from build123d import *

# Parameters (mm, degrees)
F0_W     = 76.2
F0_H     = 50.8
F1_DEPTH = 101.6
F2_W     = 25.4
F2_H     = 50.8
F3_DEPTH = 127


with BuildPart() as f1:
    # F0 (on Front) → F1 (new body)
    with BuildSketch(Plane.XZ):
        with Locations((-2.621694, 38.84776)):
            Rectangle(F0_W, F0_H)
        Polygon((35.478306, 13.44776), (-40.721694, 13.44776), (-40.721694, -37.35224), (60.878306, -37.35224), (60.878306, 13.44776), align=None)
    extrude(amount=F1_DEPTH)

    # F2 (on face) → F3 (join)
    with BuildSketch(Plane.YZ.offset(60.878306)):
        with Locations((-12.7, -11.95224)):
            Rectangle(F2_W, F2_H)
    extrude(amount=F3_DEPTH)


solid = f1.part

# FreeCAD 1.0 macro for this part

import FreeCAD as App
import Part
import Sketcher
Q = App.Units.Quantity

doc = App.newDocument("Part")
body = doc.addObject("PartDesign::Body", "Body")

# Sketch on XZ plane
sketch1 = body.newObject("Sketcher::SketchObject", "Sketch")
sketch1.AttachmentSupport = (doc.getObject("XZ_Plane"), [""])
sketch1.MapMode = "FlatFace"
sketch1.addGeometry([
    Part.LineSegment(App.Vector(-41, 64, 0), App.Vector(-41, -37, 0)),  # 0
    Part.LineSegment(App.Vector(-41, -37, 0), App.Vector(61, -37, 0)),  # 1
    Part.LineSegment(App.Vector(61, -37, 0), App.Vector(61, 13, 0)),  # 2
    Part.LineSegment(App.Vector(61, 13, 0), App.Vector(35, 13, 0)),  # 3
    Part.LineSegment(App.Vector(35, 13, 0), App.Vector(35, 64, 0)),  # 4
    Part.LineSegment(App.Vector(35, 64, 0), App.Vector(-41, 64, 0)),  # 5
], False)
sketch1.addConstraint([
    Sketcher.Constraint("Coincident", 0, 2, 1, 1),
    Sketcher.Constraint("Coincident", 1, 2, 2, 1),
    Sketcher.Constraint("Coincident", 2, 2, 3, 1),
    Sketcher.Constraint("Coincident", 3, 2, 4, 1),
    Sketcher.Constraint("Coincident", 4, 2, 5, 1),
    Sketcher.Constraint("Coincident", 5, 2, 0, 1),
    Sketcher.Constraint("Vertical", 0),
    Sketcher.Constraint("Horizontal", 1),
    Sketcher.Constraint("Vertical", 2),
    Sketcher.Constraint("Horizontal", 3),
    Sketcher.Constraint("Vertical", 4),
    Sketcher.Constraint("Horizontal", 5),
    Sketcher.Constraint("Equal", 1, 0),
    Sketcher.Constraint("Equal", 2, 4),
    Sketcher.Constraint("DistanceX", 1, 1, 1, 2, Q("4 in")),
    Sketcher.Constraint("DistanceX", 3, 2, 3, 1, Q("1 in")),
    Sketcher.Constraint("DistanceY", 0, 2, -1, 1, 37.35224),
    Sketcher.Constraint("DistanceX", 0, 2, -1, 1, 40.721694),
])
pad1 = body.newObject("PartDesign::Pad", "Pad")
pad1.Profile = sketch1
pad1.Length = Q("4 in")

# Sketch on YZ plane
sketch2 = body.newObject("Sketcher::SketchObject", "Sketch001")
sketch2.AttachmentSupport = (doc.getObject("YZ_Plane"), [""])
sketch2.MapMode = "FlatFace"
sketch2.AttachmentOffset = App.Placement(App.Vector(0, 0, 60.878306), App.Rotation())
sketch2.addGeometry([
    Part.LineSegment(App.Vector(-25, 13, 0), App.Vector(-25, -37, 0)),
    Part.LineSegment(App.Vector(-25, -37, 0), App.Vector(0, -37, 0)),
    Part.LineSegment(App.Vector(0, -37, 0), App.Vector(0, 13, 0)),
    Part.LineSegment(App.Vector(0, 13, 0), App.Vector(-25, 13, 0)),
], False)
sketch2.addConstraint([
    Sketcher.Constraint("Coincident", 0, 2, 1, 1),
    Sketcher.Constraint("Coincident", 1, 2, 2, 1),
    Sketcher.Constraint("Coincident", 2, 2, 3, 1),
    Sketcher.Constraint("Coincident", 3, 2, 0, 1),
    Sketcher.Constraint("Vertical", 0),
    Sketcher.Constraint("Horizontal", 1),
    Sketcher.Constraint("Vertical", 2),
    Sketcher.Constraint("Horizontal", 3),
    Sketcher.Constraint("PointOnObject", 1, 2, -2),
    Sketcher.Constraint("DistanceX", 1, 1, 1, 2, Q("1 in")),
    Sketcher.Constraint("DistanceY", 0, 2, 0, 1, Q("2 in")),
    Sketcher.Constraint("DistanceY", 0, 2, -1, 1, 37.35224),
])
pad2 = body.newObject("PartDesign::Pad", "Pad001")
pad2.Profile = sketch2
pad2.Length = Q("5 in")

doc.recompute()
